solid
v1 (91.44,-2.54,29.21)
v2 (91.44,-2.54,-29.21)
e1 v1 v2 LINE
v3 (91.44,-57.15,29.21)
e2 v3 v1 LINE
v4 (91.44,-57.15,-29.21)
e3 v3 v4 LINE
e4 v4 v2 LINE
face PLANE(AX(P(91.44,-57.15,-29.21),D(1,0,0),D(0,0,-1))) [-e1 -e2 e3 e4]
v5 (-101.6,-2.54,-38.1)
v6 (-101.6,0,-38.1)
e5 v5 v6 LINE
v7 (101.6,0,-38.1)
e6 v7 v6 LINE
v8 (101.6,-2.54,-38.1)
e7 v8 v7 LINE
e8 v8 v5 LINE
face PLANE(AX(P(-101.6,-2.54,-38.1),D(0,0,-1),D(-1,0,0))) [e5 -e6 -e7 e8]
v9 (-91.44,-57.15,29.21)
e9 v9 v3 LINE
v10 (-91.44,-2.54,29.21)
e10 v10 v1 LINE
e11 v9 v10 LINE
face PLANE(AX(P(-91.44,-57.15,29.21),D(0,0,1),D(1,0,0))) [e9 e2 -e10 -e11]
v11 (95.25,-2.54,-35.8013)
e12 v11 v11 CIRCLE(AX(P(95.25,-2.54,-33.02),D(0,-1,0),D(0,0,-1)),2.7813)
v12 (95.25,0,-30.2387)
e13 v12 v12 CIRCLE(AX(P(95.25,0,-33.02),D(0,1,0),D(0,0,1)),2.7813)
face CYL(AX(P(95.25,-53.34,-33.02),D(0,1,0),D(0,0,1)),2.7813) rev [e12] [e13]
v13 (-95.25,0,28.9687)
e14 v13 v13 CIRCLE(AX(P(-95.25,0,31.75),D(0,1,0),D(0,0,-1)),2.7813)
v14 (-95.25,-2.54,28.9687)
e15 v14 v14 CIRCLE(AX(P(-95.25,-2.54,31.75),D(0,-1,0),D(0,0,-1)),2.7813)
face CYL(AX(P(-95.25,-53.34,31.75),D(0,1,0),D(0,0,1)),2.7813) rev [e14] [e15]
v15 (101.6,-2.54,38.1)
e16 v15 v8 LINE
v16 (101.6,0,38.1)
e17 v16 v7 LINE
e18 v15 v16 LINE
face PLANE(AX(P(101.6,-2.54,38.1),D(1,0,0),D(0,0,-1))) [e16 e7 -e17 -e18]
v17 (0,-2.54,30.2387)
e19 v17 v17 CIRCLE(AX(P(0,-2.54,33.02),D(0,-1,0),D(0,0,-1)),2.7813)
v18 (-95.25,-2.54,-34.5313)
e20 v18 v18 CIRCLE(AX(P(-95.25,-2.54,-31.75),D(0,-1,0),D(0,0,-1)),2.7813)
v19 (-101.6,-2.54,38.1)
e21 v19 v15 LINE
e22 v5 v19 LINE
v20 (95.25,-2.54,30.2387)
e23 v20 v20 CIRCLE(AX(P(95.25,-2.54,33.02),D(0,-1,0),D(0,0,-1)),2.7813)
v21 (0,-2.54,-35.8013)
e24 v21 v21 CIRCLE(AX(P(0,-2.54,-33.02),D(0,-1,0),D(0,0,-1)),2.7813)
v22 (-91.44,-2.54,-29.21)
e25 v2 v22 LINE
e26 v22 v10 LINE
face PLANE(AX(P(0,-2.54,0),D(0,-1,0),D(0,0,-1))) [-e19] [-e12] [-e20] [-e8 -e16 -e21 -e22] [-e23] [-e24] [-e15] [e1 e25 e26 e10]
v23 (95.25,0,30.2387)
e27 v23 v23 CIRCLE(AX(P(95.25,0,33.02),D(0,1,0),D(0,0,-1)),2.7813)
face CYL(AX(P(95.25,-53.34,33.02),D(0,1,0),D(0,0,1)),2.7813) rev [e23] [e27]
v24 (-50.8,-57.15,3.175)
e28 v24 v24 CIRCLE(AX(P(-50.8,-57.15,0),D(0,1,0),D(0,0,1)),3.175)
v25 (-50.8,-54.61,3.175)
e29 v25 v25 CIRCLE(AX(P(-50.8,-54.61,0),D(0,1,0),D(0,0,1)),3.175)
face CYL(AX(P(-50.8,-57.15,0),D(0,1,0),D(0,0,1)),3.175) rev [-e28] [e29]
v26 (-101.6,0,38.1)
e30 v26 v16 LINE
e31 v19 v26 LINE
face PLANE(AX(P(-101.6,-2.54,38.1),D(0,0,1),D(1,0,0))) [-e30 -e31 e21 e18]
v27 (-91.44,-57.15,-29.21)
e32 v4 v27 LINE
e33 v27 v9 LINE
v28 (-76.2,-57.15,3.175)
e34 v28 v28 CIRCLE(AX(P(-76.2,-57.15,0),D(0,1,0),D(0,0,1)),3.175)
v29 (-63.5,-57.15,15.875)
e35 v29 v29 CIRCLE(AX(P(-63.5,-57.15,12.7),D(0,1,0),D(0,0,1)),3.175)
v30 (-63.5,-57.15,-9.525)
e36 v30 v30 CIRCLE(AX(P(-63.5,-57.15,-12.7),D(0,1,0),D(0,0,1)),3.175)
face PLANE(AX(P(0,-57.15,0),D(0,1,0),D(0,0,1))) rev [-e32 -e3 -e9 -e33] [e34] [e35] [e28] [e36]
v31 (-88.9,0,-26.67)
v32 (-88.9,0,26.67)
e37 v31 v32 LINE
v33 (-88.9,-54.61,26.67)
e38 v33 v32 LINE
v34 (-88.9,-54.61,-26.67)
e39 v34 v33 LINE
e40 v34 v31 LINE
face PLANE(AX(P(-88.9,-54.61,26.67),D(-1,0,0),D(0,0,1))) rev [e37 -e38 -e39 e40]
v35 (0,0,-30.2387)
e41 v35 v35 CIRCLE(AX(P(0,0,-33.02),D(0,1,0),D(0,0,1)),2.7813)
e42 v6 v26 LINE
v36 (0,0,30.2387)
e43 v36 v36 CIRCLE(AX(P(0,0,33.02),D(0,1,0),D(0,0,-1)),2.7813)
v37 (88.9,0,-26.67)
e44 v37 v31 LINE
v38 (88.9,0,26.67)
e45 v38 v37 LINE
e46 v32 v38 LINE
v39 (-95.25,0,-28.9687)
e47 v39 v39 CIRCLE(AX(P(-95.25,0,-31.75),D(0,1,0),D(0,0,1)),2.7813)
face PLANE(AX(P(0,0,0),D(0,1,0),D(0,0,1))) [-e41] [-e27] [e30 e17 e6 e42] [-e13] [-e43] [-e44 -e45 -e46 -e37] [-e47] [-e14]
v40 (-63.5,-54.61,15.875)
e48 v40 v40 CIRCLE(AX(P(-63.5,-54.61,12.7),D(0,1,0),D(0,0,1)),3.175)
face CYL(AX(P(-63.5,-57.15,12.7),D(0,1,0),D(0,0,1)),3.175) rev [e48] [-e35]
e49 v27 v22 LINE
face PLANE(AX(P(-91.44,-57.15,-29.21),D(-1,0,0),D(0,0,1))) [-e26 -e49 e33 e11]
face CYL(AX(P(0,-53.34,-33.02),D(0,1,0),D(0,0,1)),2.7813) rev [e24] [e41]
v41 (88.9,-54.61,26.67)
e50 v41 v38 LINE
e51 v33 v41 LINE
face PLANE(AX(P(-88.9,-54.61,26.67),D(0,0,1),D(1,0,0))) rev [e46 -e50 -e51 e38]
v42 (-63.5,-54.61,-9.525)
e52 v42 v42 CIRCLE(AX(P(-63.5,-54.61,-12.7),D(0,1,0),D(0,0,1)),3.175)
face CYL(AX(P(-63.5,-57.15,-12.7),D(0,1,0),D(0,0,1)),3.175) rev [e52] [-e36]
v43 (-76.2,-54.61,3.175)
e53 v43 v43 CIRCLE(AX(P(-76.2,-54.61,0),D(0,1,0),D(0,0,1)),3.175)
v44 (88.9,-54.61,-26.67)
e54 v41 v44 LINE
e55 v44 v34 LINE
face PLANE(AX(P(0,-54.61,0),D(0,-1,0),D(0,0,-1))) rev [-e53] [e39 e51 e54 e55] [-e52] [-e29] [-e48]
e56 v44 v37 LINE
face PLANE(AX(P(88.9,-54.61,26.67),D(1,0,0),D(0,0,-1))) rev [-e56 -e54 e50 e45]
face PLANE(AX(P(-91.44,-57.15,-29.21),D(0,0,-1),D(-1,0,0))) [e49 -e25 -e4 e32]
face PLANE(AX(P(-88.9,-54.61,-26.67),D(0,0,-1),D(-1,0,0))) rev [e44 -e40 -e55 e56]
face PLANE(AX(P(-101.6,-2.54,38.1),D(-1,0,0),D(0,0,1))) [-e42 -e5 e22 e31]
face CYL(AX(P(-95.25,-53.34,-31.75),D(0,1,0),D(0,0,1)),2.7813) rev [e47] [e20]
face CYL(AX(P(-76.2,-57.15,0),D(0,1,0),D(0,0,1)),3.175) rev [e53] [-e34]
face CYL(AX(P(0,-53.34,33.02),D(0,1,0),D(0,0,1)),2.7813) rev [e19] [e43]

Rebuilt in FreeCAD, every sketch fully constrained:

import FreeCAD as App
import Part
import Sketcher
Q = App.Units.Quantity

doc = App.newDocument("Part")
body = doc.addObject("PartDesign::Body", "Body")

# Sketch on XZ plane
sketch1 = doc.addObject("Sketcher::SketchObject", "Sketch")
body.addObject(sketch1)
sketch1.AttachmentSupport = (doc.XZ_Plane, [""])
sketch1.MapMode = "FlatFace"
sketch1.addGeometry(Part.LineSegment(App.Vector(-91, -29, 0), App.Vector(-91, 29, 0)), False)
sketch1.addGeometry(Part.LineSegment(App.Vector(-91, 29, 0), App.Vector(91, 29, 0)), False)
sketch1.addGeometry(Part.LineSegment(App.Vector(91, 29, 0), App.Vector(91, -29, 0)), False)
sketch1.addGeometry(Part.LineSegment(App.Vector(91, -29, 0), App.Vector(-91, -29, 0)), False)
sketch1.addConstraint(Sketcher.Constraint("Coincident", 0, 2, 1, 1))
sketch1.addConstraint(Sketcher.Constraint("Coincident", 1, 2, 2, 1))
sketch1.addConstraint(Sketcher.Constraint("Coincident", 2, 2, 3, 1))
sketch1.addConstraint(Sketcher.Constraint("Coincident", 3, 2, 0, 1))
sketch1.addConstraint(Sketcher.Constraint("Vertical", 0))
sketch1.addConstraint(Sketcher.Constraint("Horizontal", 1))
sketch1.addConstraint(Sketcher.Constraint("Vertical", 2))
sketch1.addConstraint(Sketcher.Constraint("Horizontal", 3))
sketch1.addConstraint(Sketcher.Constraint("Symmetric", 0, 2, 2, 2, -1, 1))
sketch1.addConstraint(Sketcher.Constraint("DistanceX", 1, 1, 1, 2, Q("7.2 in")))
sketch1.addConstraint(Sketcher.Constraint("DistanceY", 0, 1, 0, 2, Q("2.3 in")))
pad1 = doc.addObject("PartDesign::Pad", "Pad")
body.addObject(pad1)
pad1.Profile = sketch1
pad1.Length = Q("2.25 in")

# Sketch on XZ plane
sketch2 = doc.addObject("Sketcher::SketchObject", "Sketch001")
body.addObject(sketch2)
sketch2.AttachmentSupport = (doc.XZ_Plane, [""])
sketch2.MapMode = "FlatFace"
sketch2.addGeometry(Part.LineSegment(App.Vector(-102, -38, 0), App.Vector(-102, 38, 0)), False)
sketch2.addGeometry(Part.LineSegment(App.Vector(-102, 38, 0), App.Vector(102, 38, 0)), False)
sketch2.addGeometry(Part.LineSegment(App.Vector(102, 38, 0), App.Vector(102, -38, 0)), False)
sketch2.addGeometry(Part.LineSegment(App.Vector(102, -38, 0), App.Vector(-102, -38, 0)), False)
sketch2.addConstraint(Sketcher.Constraint("Coincident", 0, 2, 1, 1))
sketch2.addConstraint(Sketcher.Constraint("Coincident", 1, 2, 2, 1))
sketch2.addConstraint(Sketcher.Constraint("Coincident", 2, 2, 3, 1))
sketch2.addConstraint(Sketcher.Constraint("Coincident", 3, 2, 0, 1))
sketch2.addConstraint(Sketcher.Constraint("Vertical", 0))
sketch2.addConstraint(Sketcher.Constraint("Horizontal", 1))
sketch2.addConstraint(Sketcher.Constraint("Vertical", 2))
sketch2.addConstraint(Sketcher.Constraint("Horizontal", 3))
sketch2.addConstraint(Sketcher.Constraint("Symmetric", 0, 2, 2, 2, -1, 1))
sketch2.addConstraint(Sketcher.Constraint("DistanceX", 1, 1, 1, 2, Q("8 in")))
sketch2.addConstraint(Sketcher.Constraint("DistanceY", 0, 1, 0, 2, Q("3 in")))
pad2 = doc.addObject("PartDesign::Pad", "Pad001")
body.addObject(pad2)
pad2.Profile = sketch2
pad2.Length = Q("0.1 in")

# Sketch on XZ plane
sketch3 = doc.addObject("Sketcher::SketchObject", "Sketch002")
body.addObject(sketch3)
sketch3.AttachmentSupport = (doc.XZ_Plane, [""])
sketch3.MapMode = "FlatFace"
sketch3.addGeometry(Part.LineSegment(App.Vector(-89, -27, 0), App.Vector(-89, 27, 0)), False)
sketch3.addGeometry(Part.LineSegment(App.Vector(-89, 27, 0), App.Vector(89, 27, 0)), False)
sketch3.addGeometry(Part.LineSegment(App.Vector(89, 27, 0), App.Vector(89, -27, 0)), False)
sketch3.addGeometry(Part.LineSegment(App.Vector(89, -27, 0), App.Vector(-89, -27, 0)), False)
sketch3.addConstraint(Sketcher.Constraint("Coincident", 0, 2, 1, 1))
sketch3.addConstraint(Sketcher.Constraint("Coincident", 1, 2, 2, 1))
sketch3.addConstraint(Sketcher.Constraint("Coincident", 2, 2, 3, 1))
sketch3.addConstraint(Sketcher.Constraint("Coincident", 3, 2, 0, 1))
sketch3.addConstraint(Sketcher.Constraint("Vertical", 0))
sketch3.addConstraint(Sketcher.Constraint("Horizontal", 1))
sketch3.addConstraint(Sketcher.Constraint("Vertical", 2))
sketch3.addConstraint(Sketcher.Constraint("Horizontal", 3))
sketch3.addConstraint(Sketcher.Constraint("Symmetric", 0, 2, 2, 2, -1, 1))
sketch3.addConstraint(Sketcher.Constraint("DistanceX", 1, 1, 1, 2, Q("7 in")))
sketch3.addConstraint(Sketcher.Constraint("DistanceY", 0, 1, 0, 2, Q("2.1 in")))
pocket1 = doc.addObject("PartDesign::Pocket", "Pocket")
body.addObject(pocket1)
pocket1.Profile = sketch3
pocket1.Length = Q("2.15 in")
pocket1.Reversed = True

# Sketch on XZ plane
sketch4 = doc.addObject("Sketcher::SketchObject", "Sketch003")
body.addObject(sketch4)
sketch4.AttachmentSupport = (doc.XZ_Plane, [""])
sketch4.MapMode = "FlatFace"
sketch4.addGeometry(Part.Circle(App.Vector(-95.2, -31.8, 0), App.Vector(0, 0, 1), 2.8), False)
sketch4.addGeometry(Part.Circle(App.Vector(0, -33, 0), App.Vector(0, 0, 1), 2.8), False)
sketch4.addGeometry(Part.Circle(App.Vector(95.2, -33, 0), App.Vector(0, 0, 1), 2.8), False)
sketch4.addGeometry(Part.Circle(App.Vector(95.2, 33, 0), App.Vector(0, 0, 1), 2.8), False)
sketch4.addGeometry(Part.Circle(App.Vector(0, 33, 0), App.Vector(0, 0, 1), 2.8), False)
sketch4.addGeometry(Part.Circle(App.Vector(-95.2, 31.8, 0), App.Vector(0, 0, 1), 2.8), False)
sketch4.addConstraint(Sketcher.Constraint("Equal", 0, 1))
sketch4.addConstraint(Sketcher.Constraint("Equal", 1, 2))
sketch4.addConstraint(Sketcher.Constraint("Equal", 2, 3))
sketch4.addConstraint(Sketcher.Constraint("Equal", 3, 4))
sketch4.addConstraint(Sketcher.Constraint("Equal", 4, 5))
sketch4.addConstraint(Sketcher.Constraint("Symmetric", 1, 3, 4, 3, -1, 1))
sketch4.addConstraint(Sketcher.Constraint("Symmetric", 2, 3, 3, 3, -1))
sketch4.addConstraint(Sketcher.Constraint("Symmetric", 0, 3, 5, 3, -1))
sketch4.addConstraint(Sketcher.Constraint("PointOnObject", 1, 3, -2))
sketch4.addConstraint(Sketcher.Constraint("Horizontal", 1, 3, 2, 3))
sketch4.addConstraint(Sketcher.Constraint("Diameter", 0, Q("0.219 in")))
sketch4.addConstraint(Sketcher.Constraint("DistanceY", 1, 3, -1, 1, Q("1.3 in")))
sketch4.addConstraint(Sketcher.Constraint("DistanceX", 0, 3, 2, 3, Q("7.5 in")))
sketch4.addConstraint(Sketcher.Constraint("DistanceY", 0, 3, 5, 3, Q("2.5 in")))
sketch4.addConstraint(Sketcher.Constraint("DistanceX", 0, 3, -1, 1, Q("3.75 in")))
pocket2 = doc.addObject("PartDesign::Pocket", "Pocket001")
body.addObject(pocket2)
pocket2.Profile = sketch4
pocket2.Length = Q("2.1 in")
pocket2.Reversed = True

# Sketch on XZ plane
sketch5 = doc.addObject("Sketcher::SketchObject", "Sketch004")
body.addObject(sketch5)
sketch5.AttachmentSupport = (doc.XZ_Plane, [""])
sketch5.MapMode = "FlatFace"
sketch5.AttachmentOffset = App.Placement(App.Vector(0, 0, 2.15 * 25.4), App.Rotation())
sketch5.addGeometry(Part.Circle(App.Vector(-63.5, -12.7, 0), App.Vector(0, 0, 1), 3.2), False)
sketch5.addGeometry(Part.Circle(App.Vector(-50.8, 0, 0), App.Vector(0, 0, 1), 3.2), False)
sketch5.addGeometry(Part.Circle(App.Vector(-63.5, 12.7, 0), App.Vector(0, 0, 1), 3.2), False)
sketch5.addGeometry(Part.Circle(App.Vector(-76.2, 0, 0), App.Vector(0, 0, 1), 3.2), False)
sketch5.addConstraint(Sketcher.Constraint("Equal", 0, 1))
sketch5.addConstraint(Sketcher.Constraint("Equal", 1, 2))
sketch5.addConstraint(Sketcher.Constraint("Equal", 2, 3))
sketch5.addConstraint(Sketcher.Constraint("Symmetric", 0, 3, 2, 3, -1))
sketch5.addConstraint(Sketcher.Constraint("PointOnObject", 1, 3, -1))
sketch5.addConstraint(Sketcher.Constraint("PointOnObject", 3, 3, -1))
sketch5.addConstraint(Sketcher.Constraint("Diameter", 0, Q("0.25 in")))
sketch5.addConstraint(Sketcher.Constraint("DistanceX", 1, 3, -1, 1, Q("2 in")))
sketch5.addConstraint(Sketcher.Constraint("DistanceX", 3, 3, -1, 1, Q("3 in")))
sketch5.addConstraint(Sketcher.Constraint("DistanceY", 0, 3, 2, 3, Q("1 in")))
sketch5.addConstraint(Sketcher.Constraint("DistanceX", 0, 3, -1, 1, Q("2.5 in")))
pocket3 = doc.addObject("PartDesign::Pocket", "Pocket002")
body.addObject(pocket3)
pocket3.Profile = sketch5
pocket3.Type = "ThroughAll"
pocket3.Reversed = True

doc.recompute()
